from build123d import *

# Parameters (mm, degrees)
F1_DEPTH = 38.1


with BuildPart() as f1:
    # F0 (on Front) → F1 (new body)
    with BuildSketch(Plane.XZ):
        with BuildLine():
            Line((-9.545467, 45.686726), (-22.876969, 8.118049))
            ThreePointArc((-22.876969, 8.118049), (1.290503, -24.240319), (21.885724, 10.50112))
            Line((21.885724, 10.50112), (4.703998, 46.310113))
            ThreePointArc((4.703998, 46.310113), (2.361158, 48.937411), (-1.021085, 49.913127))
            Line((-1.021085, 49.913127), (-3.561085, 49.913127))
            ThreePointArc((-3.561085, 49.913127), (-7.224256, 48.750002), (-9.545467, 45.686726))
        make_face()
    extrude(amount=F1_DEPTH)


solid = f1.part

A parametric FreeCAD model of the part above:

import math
import FreeCAD as App
import Part
import Sketcher
from FreeCAD import Vector
Q = App.Units.Quantity

doc = App.newDocument("Part")
body = doc.addObject("PartDesign::Body", "Body")

sketch1 = body.newObject("Sketcher::SketchObject", "Sketch")
sketch1.AttachmentSupport = (doc.getObject("XZ_Plane"), [""])
sketch1.MapMode = "FlatFace"
sketch1.addGeometry([
    Part.LineSegment(Vector(-9.545467, 45.686726, 0), Vector(-22.876969, 8.118049, 0)),
    Part.ArcOfCircle(Part.Circle(Vector(0, 0, 0), Vector(0, 0, 1), 24.274646), math.radians(160.462421), math.radians(385.632437)),
    Part.LineSegment(Vector(21.885724, 10.50112, 0), Vector(4.703998, 46.310113, 0)),
    Part.ArcOfCircle(Part.Circle(Vector(-1.021087, 43.563123, 0), Vector(0, 0, 1), 6.350004), math.radians(25.632456), math.radians(89.999986)),
    Part.LineSegment(Vector(-1.021085, 49.913127, 0), Vector(-3.561085, 49.913127, 0)),
    Part.ArcOfCircle(Part.Circle(Vector(-3.561083, 43.563125, 0), Vector(0, 0, 1), 6.350002), math.radians(90.000014), math.radians(160.462407)),
], False)
sketch1.addConstraint([
    Sketcher.Constraint("Tangent", 0, 2, 1, 1),
    Sketcher.Constraint("Tangent", 1, 2, 2, 1),
    Sketcher.Constraint("Tangent", 2, 2, 3, 1),
    Sketcher.Constraint("Tangent", 3, 2, 4, 1),
    Sketcher.Constraint("Tangent", 4, 2, 5, 1),
    Sketcher.Constraint("Tangent", 5, 2, 0, 1),
    Sketcher.Constraint("Horizontal", 4),
    Sketcher.Constraint("Coincident", 1, 3, -1, 1),
    Sketcher.Constraint("Equal", 3, 5),
    Sketcher.Constraint("Radius", 3, Q("0.2500001 in")),
    Sketcher.Constraint("DistanceX", 4, 2, 4, 1, Q("0.1 in")),
    Sketcher.Constraint("DistanceX", 5, 3, -1, 1, Q("0.1402001 in")),
    Sketcher.Constraint("Radius", 1, Q("24.274646 mm")),
    Sketcher.Constraint("Distance", 2, Q("39.7177 mm")),
])
pad1 = body.newObject("PartDesign::Pad", "Pad")
pad1.Profile = sketch1
pad1.Length = Q("1.5 in")

doc.recompute()
